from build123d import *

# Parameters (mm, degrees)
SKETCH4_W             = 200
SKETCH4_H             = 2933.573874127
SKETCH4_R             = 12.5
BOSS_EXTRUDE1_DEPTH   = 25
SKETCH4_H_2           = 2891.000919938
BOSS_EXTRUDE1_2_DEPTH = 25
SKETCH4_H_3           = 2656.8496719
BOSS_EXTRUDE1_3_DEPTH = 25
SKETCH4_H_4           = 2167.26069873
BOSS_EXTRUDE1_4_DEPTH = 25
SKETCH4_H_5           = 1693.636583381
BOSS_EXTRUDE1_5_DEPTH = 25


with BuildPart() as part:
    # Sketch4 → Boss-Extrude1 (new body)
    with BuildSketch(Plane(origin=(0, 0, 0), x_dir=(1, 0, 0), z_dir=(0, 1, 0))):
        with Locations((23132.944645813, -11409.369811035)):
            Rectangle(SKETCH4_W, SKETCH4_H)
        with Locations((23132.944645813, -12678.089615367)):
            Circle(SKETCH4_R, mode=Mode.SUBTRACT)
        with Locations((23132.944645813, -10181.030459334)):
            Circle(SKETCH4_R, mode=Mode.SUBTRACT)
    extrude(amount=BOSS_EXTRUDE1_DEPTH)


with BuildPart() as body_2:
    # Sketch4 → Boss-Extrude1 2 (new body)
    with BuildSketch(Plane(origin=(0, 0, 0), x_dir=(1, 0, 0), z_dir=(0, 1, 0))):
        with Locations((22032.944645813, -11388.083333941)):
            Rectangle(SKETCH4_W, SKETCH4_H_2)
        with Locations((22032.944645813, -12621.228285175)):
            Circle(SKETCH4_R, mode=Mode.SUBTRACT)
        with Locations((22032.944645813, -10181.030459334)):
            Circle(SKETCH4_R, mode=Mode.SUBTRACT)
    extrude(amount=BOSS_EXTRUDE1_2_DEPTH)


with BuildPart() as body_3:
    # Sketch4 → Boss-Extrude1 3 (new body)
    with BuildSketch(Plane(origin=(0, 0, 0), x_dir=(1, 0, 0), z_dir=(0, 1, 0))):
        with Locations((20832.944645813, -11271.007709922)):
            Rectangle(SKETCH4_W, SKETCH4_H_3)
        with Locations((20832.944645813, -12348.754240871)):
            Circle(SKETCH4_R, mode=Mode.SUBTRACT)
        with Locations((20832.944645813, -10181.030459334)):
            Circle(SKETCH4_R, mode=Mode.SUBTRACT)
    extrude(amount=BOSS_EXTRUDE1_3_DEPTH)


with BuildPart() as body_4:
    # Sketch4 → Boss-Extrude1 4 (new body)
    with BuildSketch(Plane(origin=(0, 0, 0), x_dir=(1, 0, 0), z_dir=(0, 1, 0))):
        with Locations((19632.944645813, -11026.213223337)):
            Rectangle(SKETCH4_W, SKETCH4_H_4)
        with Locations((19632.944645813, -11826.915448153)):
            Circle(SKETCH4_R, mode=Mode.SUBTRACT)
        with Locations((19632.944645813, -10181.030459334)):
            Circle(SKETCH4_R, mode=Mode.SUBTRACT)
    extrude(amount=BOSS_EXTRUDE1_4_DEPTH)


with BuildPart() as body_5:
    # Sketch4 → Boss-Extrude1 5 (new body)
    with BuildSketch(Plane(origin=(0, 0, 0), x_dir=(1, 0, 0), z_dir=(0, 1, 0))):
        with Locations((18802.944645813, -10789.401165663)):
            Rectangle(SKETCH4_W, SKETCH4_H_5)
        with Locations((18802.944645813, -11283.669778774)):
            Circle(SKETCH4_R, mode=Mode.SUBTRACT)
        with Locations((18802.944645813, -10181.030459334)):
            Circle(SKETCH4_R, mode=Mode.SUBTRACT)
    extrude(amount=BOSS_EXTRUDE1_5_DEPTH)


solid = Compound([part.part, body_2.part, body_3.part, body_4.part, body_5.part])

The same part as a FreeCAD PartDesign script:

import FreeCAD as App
import Part
import Sketcher

V = App.Vector
Q = App.Units.Quantity


def add_polygon(sketch, points):
    """Adds a closed chain of lines whose ends are joined by coincident constraints."""
    first, n = sketch.GeometryCount, len(points)
    for a, b in zip(points, points[1:] + points[:1]):
        sketch.addGeometry(Part.LineSegment(App.Vector(*a, 0), App.Vector(*b, 0)), False)
    for i in range(n):
        sketch.addConstraint(Sketcher.Constraint("Coincident", first + i, 2, first + (i + 1) % n, 1))

doc = App.newDocument("Part")
body = doc.addObject("PartDesign::Body", "Body")

# Sketch on XZ plane
sketch1 = body.newObject("Sketcher::SketchObject", "Sketch")
sketch1.AttachmentSupport = (doc.getObject("XZ_Plane"), [""])
sketch1.MapMode = "FlatFace"
add_polygon(sketch1, [(23032.944646, 9942.582874), (23032.944646, 12876.156748), (23232.944646, 12876.156748), (23232.944646, 9942.582874)])  # lines 0-3
sketch1.addGeometry(Part.Circle(V(23132.944646, 12678.089615, 0), V(0, 0, 1), 12.5), False)  # 4
sketch1.addGeometry(Part.Circle(V(23132.944646, 10181.030459, 0), V(0, 0, 1), 12.5), False)  # 5
sketch1.addConstraint(Sketcher.Constraint("Vertical", 0))
sketch1.addConstraint(Sketcher.Constraint("Horizontal", 1))
sketch1.addConstraint(Sketcher.Constraint("Vertical", 2))
sketch1.addConstraint(Sketcher.Constraint("Horizontal", 3))
sketch1.addConstraint(Sketcher.Constraint("Equal", 4, 5))
sketch1.addConstraint(Sketcher.Constraint("Vertical", 4, 3, 5, 3))
sketch1.addConstraint(Sketcher.Constraint("Diameter", 4, Q("25 mm")))
sketch1.addConstraint(Sketcher.Constraint("DistanceX", 1, 1, 1, 2, Q("200 mm")))
sketch1.addConstraint(Sketcher.Constraint("DistanceX", 0, 2, 4, 3, Q("100 mm")))
sketch1.addConstraint(Sketcher.Constraint("DistanceY", 0, 1, 0, 2, Q("2933.573874 mm")))
sketch1.addConstraint(Sketcher.Constraint("DistanceY", -1, 1, 5, 3, Q("10181.030459 mm")))
sketch1.addConstraint(Sketcher.Constraint("DistanceY", -1, 1, 0, 2, Q("12876.156748 mm")))
sketch1.addConstraint(Sketcher.Constraint("DistanceY", 2, 2, 4, 3, Q("2735.506741 mm")))
sketch1.addConstraint(Sketcher.Constraint("DistanceX", -1, 1, 4, 3, Q("23132.944646 mm")))
pad1 = body.newObject("PartDesign::Pad", "Pad")
pad1.Profile = sketch1
pad1.Length = 25
pad1.Reversed = True
body2 = doc.addObject("PartDesign::Body", "Body001")

# Sketch on XZ plane
sketch2 = body2.newObject("Sketcher::SketchObject", "Sketch001")
sketch2.AttachmentSupport = (doc.getObject("XZ_Plane001"), [""])
sketch2.MapMode = "FlatFace"
add_polygon(sketch2, [(21932.944646, 9942.582874), (21932.944646, 12833.583794), (22132.944646, 12833.583794), (22132.944646, 9942.582874)])  # lines 0-3
sketch2.addGeometry(Part.Circle(V(22032.944646, 12621.228285, 0), V(0, 0, 1), 12.5), False)  # 4
sketch2.addGeometry(Part.Circle(V(22032.944646, 10181.030459, 0), V(0, 0, 1), 12.5), False)  # 5
sketch2.addConstraint(Sketcher.Constraint("Vertical", 0))
sketch2.addConstraint(Sketcher.Constraint("Horizontal", 1))
sketch2.addConstraint(Sketcher.Constraint("Vertical", 2))
sketch2.addConstraint(Sketcher.Constraint("Horizontal", 3))
sketch2.addConstraint(Sketcher.Constraint("Equal", 4, 5))
sketch2.addConstraint(Sketcher.Constraint("Vertical", 4, 3, 5, 3))
sketch2.addConstraint(Sketcher.Constraint("Diameter", 4, Q("25 mm")))
sketch2.addConstraint(Sketcher.Constraint("DistanceX", 1, 1, 1, 2, Q("200 mm")))
sketch2.addConstraint(Sketcher.Constraint("DistanceX", 0, 2, 4, 3, Q("100 mm")))
sketch2.addConstraint(Sketcher.Constraint("DistanceY", 0, 1, 0, 2, Q("2891.00092 mm")))
sketch2.addConstraint(Sketcher.Constraint("DistanceY", -1, 1, 5, 3, Q("10181.030459 mm")))
sketch2.addConstraint(Sketcher.Constraint("DistanceY", 4, 3, 0, 2, Q("212.355509 mm")))
sketch2.addConstraint(Sketcher.Constraint("DistanceX", -1, 1, 4, 3, Q("22032.944646 mm")))
sketch2.addConstraint(Sketcher.Constraint("DistanceY", -1, 1, 4, 3, Q("12621.228285 mm")))
pad2 = body2.newObject("PartDesign::Pad", "Pad001")
pad2.Profile = sketch2
pad2.Length = 25
pad2.Reversed = True
body3 = doc.addObject("PartDesign::Body", "Body002")

# Sketch on XZ plane
sketch3 = body3.newObject("Sketcher::SketchObject", "Sketch002")
sketch3.AttachmentSupport = (doc.getObject("XZ_Plane002"), [""])
sketch3.MapMode = "FlatFace"
add_polygon(sketch3, [(20732.944646, 9942.582874), (20732.944646, 12599.432546), (20932.944646, 12599.432546), (20932.944646, 9942.582874)])  # lines 0-3
sketch3.addGeometry(Part.Circle(V(20832.944646, 12348.754241, 0), V(0, 0, 1), 12.5), False)  # 4
sketch3.addGeometry(Part.Circle(V(20832.944646, 10181.030459, 0), V(0, 0, 1), 12.5), False)  # 5
sketch3.addConstraint(Sketcher.Constraint("Vertical", 0))
sketch3.addConstraint(Sketcher.Constraint("Horizontal", 1))
sketch3.addConstraint(Sketcher.Constraint("Vertical", 2))
sketch3.addConstraint(Sketcher.Constraint("Horizontal", 3))
sketch3.addConstraint(Sketcher.Constraint("Equal", 4, 5))
sketch3.addConstraint(Sketcher.Constraint("Vertical", 4, 3, 5, 3))
sketch3.addConstraint(Sketcher.Constraint("Diameter", 4, Q("25 mm")))
sketch3.addConstraint(Sketcher.Constraint("DistanceX", 1, 1, 1, 2, Q("200 mm")))
sketch3.addConstraint(Sketcher.Constraint("DistanceX", 0, 2, 4, 3, Q("100 mm")))
sketch3.addConstraint(Sketcher.Constraint("DistanceY", 0, 1, 0, 2, Q("2656.849672 mm")))
sketch3.addConstraint(Sketcher.Constraint("DistanceY", -1, 1, 4, 3, Q("12348.754241 mm")))
sketch3.addConstraint(Sketcher.Constraint("DistanceY", -1, 1, 5, 3, Q("10181.030459 mm")))
sketch3.addConstraint(Sketcher.Constraint("DistanceX", -1, 1, 4, 3, Q("20832.944646 mm")))
sketch3.addConstraint(Sketcher.Constraint("DistanceY", -1, 1, 0, 2, Q("12599.432546 mm")))
pad3 = body3.newObject("PartDesign::Pad", "Pad002")
pad3.Profile = sketch3
pad3.Length = 25
pad3.Reversed = True
body4 = doc.addObject("PartDesign::Body", "Body003")

# Sketch on XZ plane
sketch4 = body4.newObject("Sketcher::SketchObject", "Sketch003")
sketch4.AttachmentSupport = (doc.getObject("XZ_Plane003"), [""])
sketch4.MapMode = "FlatFace"
add_polygon(sketch4, [(19532.944646, 9942.582874), (19532.944646, 12109.843573), (19732.944646, 12109.843573), (19732.944646, 9942.582874)])  # lines 0-3
sketch4.addGeometry(Part.Circle(V(19632.944646, 11826.915448, 0), V(0, 0, 1), 12.5), False)  # 4
sketch4.addGeometry(Part.Circle(V(19632.944646, 10181.030459, 0), V(0, 0, 1), 12.5), False)  # 5
sketch4.addConstraint(Sketcher.Constraint("Vertical", 0))
sketch4.addConstraint(Sketcher.Constraint("Horizontal", 1))
sketch4.addConstraint(Sketcher.Constraint("Vertical", 2))
sketch4.addConstraint(Sketcher.Constraint("Horizontal", 3))
sketch4.addConstraint(Sketcher.Constraint("Equal", 4, 5))
sketch4.addConstraint(Sketcher.Constraint("Vertical", 4, 3, 5, 3))
sketch4.addConstraint(Sketcher.Constraint("Diameter", 4, Q("25 mm")))
sketch4.addConstraint(Sketcher.Constraint("DistanceX", 1, 1, 1, 2, Q("200 mm")))
sketch4.addConstraint(Sketcher.Constraint("DistanceX", 0, 2, 4, 3, Q("100 mm")))
sketch4.addConstraint(Sketcher.Constraint("DistanceY", 0, 1, 0, 2, Q("2167.260699 mm")))
sketch4.addConstraint(Sketcher.Constraint("DistanceY", -1, 1, 4, 3, Q("11826.915448 mm")))
sketch4.addConstraint(Sketcher.Constraint("DistanceY", -1, 1, 5, 3, Q("10181.030459 mm")))
sketch4.addConstraint(Sketcher.Constraint("DistanceX", -1, 1, 4, 3, Q("19632.944646 mm")))
sketch4.addConstraint(Sketcher.Constraint("DistanceY", -1, 1, 0, 2, Q("12109.843573 mm")))
pad4 = body4.newObject("PartDesign::Pad", "Pad003")
pad4.Profile = sketch4
pad4.Length = 25
pad4.Reversed = True
body5 = doc.addObject("PartDesign::Body", "Body004")

# Sketch on XZ plane
sketch5 = body5.newObject("Sketcher::SketchObject", "Sketch004")
sketch5.AttachmentSupport = (doc.getObject("XZ_Plane004"), [""])
sketch5.MapMode = "FlatFace"
add_polygon(sketch5, [(18702.944646, 9942.582874), (18702.944646, 11636.219457), (18902.944646, 11636.219457), (18902.944646, 9942.582874)])  # lines 0-3
sketch5.addGeometry(Part.Circle(V(18802.944646, 11283.669779, 0), V(0, 0, 1), 12.5), False)  # 4
sketch5.addGeometry(Part.Circle(V(18802.944646, 10181.030459, 0), V(0, 0, 1), 12.5), False)  # 5
sketch5.addConstraint(Sketcher.Constraint("Vertical", 0))
sketch5.addConstraint(Sketcher.Constraint("Horizontal", 1))
sketch5.addConstraint(Sketcher.Constraint("Vertical", 2))
sketch5.addConstraint(Sketcher.Constraint("Horizontal", 3))
sketch5.addConstraint(Sketcher.Constraint("Equal", 4, 5))
sketch5.addConstraint(Sketcher.Constraint("Vertical", 4, 3, 5, 3))
sketch5.addConstraint(Sketcher.Constraint("Diameter", 4, Q("25 mm")))
sketch5.addConstraint(Sketcher.Constraint("DistanceX", 1, 1, 1, 2, Q("200 mm")))
sketch5.addConstraint(Sketcher.Constraint("DistanceX", 0, 2, 4, 3, Q("100 mm")))
sketch5.addConstraint(Sketcher.Constraint("DistanceY", 5, 3, 0, 2, Q("1455.188998 mm")))
sketch5.addConstraint(Sketcher.Constraint("DistanceY", 0, 1, 0, 2, Q("1693.636583 mm")))
sketch5.addConstraint(Sketcher.Constraint("DistanceY", -1, 1, 4, 3, Q("11283.669779 mm")))
sketch5.addConstraint(Sketcher.Constraint("DistanceY", -1, 1, 5, 3, Q("10181.030459 mm")))
sketch5.addConstraint(Sketcher.Constraint("DistanceX", -1, 1, 4, 3, Q("18802.944646 mm")))
pad5 = body5.newObject("PartDesign::Pad", "Pad004")
pad5.Profile = sketch5
pad5.Length = 25
pad5.Reversed = True

doc.recompute()
